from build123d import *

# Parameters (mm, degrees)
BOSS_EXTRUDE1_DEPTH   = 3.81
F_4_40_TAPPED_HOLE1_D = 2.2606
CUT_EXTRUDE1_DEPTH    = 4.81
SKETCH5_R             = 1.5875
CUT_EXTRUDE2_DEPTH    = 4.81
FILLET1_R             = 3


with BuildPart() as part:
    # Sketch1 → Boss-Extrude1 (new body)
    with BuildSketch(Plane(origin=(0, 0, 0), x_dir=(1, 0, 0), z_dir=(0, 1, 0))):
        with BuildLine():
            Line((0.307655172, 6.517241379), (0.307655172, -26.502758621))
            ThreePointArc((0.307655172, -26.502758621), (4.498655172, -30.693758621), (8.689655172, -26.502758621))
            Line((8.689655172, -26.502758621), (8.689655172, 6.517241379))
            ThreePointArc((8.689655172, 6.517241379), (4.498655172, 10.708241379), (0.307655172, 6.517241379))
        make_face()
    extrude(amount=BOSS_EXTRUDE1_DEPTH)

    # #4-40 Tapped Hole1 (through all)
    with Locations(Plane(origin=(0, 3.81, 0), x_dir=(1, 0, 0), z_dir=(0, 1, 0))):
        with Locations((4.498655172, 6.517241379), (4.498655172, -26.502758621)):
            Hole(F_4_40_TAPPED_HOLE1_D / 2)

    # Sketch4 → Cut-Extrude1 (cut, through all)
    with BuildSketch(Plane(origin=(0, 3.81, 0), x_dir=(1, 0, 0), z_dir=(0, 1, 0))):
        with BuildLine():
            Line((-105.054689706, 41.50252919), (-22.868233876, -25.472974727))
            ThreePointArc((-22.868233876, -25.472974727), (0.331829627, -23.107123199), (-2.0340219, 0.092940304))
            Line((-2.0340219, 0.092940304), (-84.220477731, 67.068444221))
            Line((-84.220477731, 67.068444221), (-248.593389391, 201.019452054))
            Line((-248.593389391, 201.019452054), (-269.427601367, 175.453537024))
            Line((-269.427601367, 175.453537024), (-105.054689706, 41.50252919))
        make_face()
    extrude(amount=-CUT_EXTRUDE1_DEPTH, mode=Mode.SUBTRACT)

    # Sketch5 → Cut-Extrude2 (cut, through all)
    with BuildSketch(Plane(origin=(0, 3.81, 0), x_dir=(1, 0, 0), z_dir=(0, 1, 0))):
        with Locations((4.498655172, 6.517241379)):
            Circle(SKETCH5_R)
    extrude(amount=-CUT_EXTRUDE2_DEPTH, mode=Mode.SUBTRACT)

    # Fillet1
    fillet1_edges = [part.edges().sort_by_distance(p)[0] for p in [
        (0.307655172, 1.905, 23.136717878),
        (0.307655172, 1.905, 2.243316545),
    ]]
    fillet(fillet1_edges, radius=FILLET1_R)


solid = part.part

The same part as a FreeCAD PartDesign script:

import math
import FreeCAD as App
import Part
import Sketcher

V = App.Vector
Q = App.Units.Quantity


def edges_at(feature, points):
    """Names of the edges that pass closest to the given points."""
    edges = feature.Shape.Edges
    near = lambda p: min(range(len(edges)), key=lambda i: edges[i].distToShape(Part.Vertex(*p))[0])
    return sorted({f"Edge{near(p) + 1}" for p in points})

doc = App.newDocument("Part")
body = doc.addObject("PartDesign::Body", "Body")

sketch1 = body.newObject("Sketcher::SketchObject", "Sketch")
sketch1.AttachmentSupport = (doc.getObject("XZ_Plane"), [""])
sketch1.MapMode = "FlatFace"
sketch1.addGeometry([
    Part.LineSegment(V(0.307655, -6.517241, 0), V(0.307655, 26.502759, 0)),
    Part.ArcOfCircle(Part.Circle(V(4.498655, 26.502759, 0), V(0, 0, 1), 4.191), math.radians(0), math.radians(180)),
    Part.LineSegment(V(8.689655, 26.502759, 0), V(8.689655, -6.517241, 0)),
    Part.ArcOfCircle(Part.Circle(V(4.498655, -6.517241, 0), V(0, 0, 1), 4.191), math.radians(180), math.radians(360)),
], False)
sketch1.addConstraint([
    Sketcher.Constraint("Tangent", 0, 2, 1, 2),
    Sketcher.Constraint("Tangent", 1, 1, 2, 1),
    Sketcher.Constraint("Tangent", 2, 2, 3, 2),
    Sketcher.Constraint("Tangent", 3, 1, 0, 1),
    Sketcher.Constraint("Vertical", 0),
    Sketcher.Constraint("Vertical", 2),
    Sketcher.Constraint("DistanceY", 0, 1, 0, 2, Q("1.3 in")),
    Sketcher.Constraint("Radius", 1, Q("0.165 in")),
    Sketcher.Constraint("DistanceY", -1, 1, 1, 3, Q("26.502759 mm")),
    Sketcher.Constraint("DistanceX", -1, 1, 1, 3, Q("4.498655 mm")),
])
pad1 = body.newObject("PartDesign::Pad", "Pad")
pad1.Profile = sketch1
pad1.Length = Q("0.15 in")
pad1.Reversed = True

sketch2 = body.newObject("Sketcher::SketchObject", "Sketch001")
sketch2.AttachmentSupport = (doc.getObject("XZ_Plane"), [""])
sketch2.MapMode = "FlatFace"
sketch2.AttachmentOffset = App.Placement(V(0, 0, -0.15 * 25.4), App.Rotation())
sketch2.addGeometry([
    Part.Circle(V(4.498655, -6.517241, 0), V(0, 0, 1), 1.1303),
    Part.Circle(V(4.498655, 26.502759, 0), V(0, 0, 1), 1.1303),
], False)
sketch2.addConstraint([
    Sketcher.Constraint("Equal", 0, 1),
    Sketcher.Constraint("Vertical", 0, 3, 1, 3),
    Sketcher.Constraint("Diameter", 0, Q("0.089 in")),
    Sketcher.Constraint("DistanceY", 0, 3, 1, 3, Q("1.3 in")),
    Sketcher.Constraint("DistanceY", 0, 3, -1, 1, Q("6.517241 mm")),
    Sketcher.Constraint("DistanceX", -1, 1, 0, 3, Q("4.498655 mm")),
])
doc.recompute()
hole = body.newObject("PartDesign::Hole", "Hole")
hole.Profile = sketch2
hole.ThreadType = "None"
hole.Diameter = Q("0.089 in")
hole.DepthType = "ThroughAll"
hole.Reversed = True

sketch3 = body.newObject("Sketcher::SketchObject", "Sketch002")
sketch3.AttachmentSupport = (doc.getObject("XZ_Plane"), [""])
sketch3.MapMode = "FlatFace"
sketch3.AttachmentOffset = App.Placement(V(0, 0, -0.15 * 25.4), App.Rotation())
sketch3.addGeometry([
    Part.LineSegment(V(-105.05469, -41.502529, 0), V(-22.868234, 25.472975, 0)),
    Part.ArcOfCircle(Part.Circle(V(-12.451128, 12.690017, 0), V(0, 0, 1), 16.49), math.radians(-50.822671), math.radians(129.177329)),
    Part.LineSegment(V(-2.034022, -0.09294, 0), V(-84.220478, -67.068444, 0)),
    Part.LineSegment(V(-84.220478, -67.068444, 0), V(-248.593389, -201.019452, 0)),
    Part.LineSegment(V(-248.593389, -201.019452, 0), V(-269.427601, -175.453537, 0)),
    Part.LineSegment(V(-269.427601, -175.453537, 0), V(-105.05469, -41.502529, 0)),
], False)
sketch3.addConstraint([
    Sketcher.Constraint("Tangent", 0, 2, 1, 2),
    Sketcher.Constraint("Tangent", 1, 1, 2, 1),
    Sketcher.Constraint("Coincident", 2, 2, 3, 1),
    Sketcher.Constraint("Coincident", 3, 2, 4, 1),
    Sketcher.Constraint("Coincident", 4, 2, 5, 1),
    Sketcher.Constraint("Coincident", 5, 2, 0, 1),
    Sketcher.Constraint("Parallel", 0, 2),
    Sketcher.Constraint("Parallel", 2, 3),
    Sketcher.Constraint("Perpendicular", 3, 4),
    Sketcher.Constraint("Perpendicular", 4, 5),
    Sketcher.Constraint("Equal", 0, 2),
    Sketcher.Constraint("Radius", 1, Q("16.49 mm")),
    Sketcher.Constraint("DistanceX", 4, 2, -1, 1, Q("269.427601 mm")),
    Sketcher.Constraint("Distance", 0, Q("106.02043 mm")),
    Sketcher.Constraint("Distance", 3, Q("212.040861 mm")),
    Sketcher.Constraint("DistanceX", 1, 1, -1, 1, Q("2.034022 mm")),
    Sketcher.Constraint("DistanceY", 1, 1, -1, 1, Q("0.09294 mm")),
])
pocket1 = body.newObject("PartDesign::Pocket", "Pocket")
pocket1.Profile = sketch3
pocket1.Type = "ThroughAll"
pocket1.Reversed = True

sketch4 = body.newObject("Sketcher::SketchObject", "Sketch003")
sketch4.AttachmentSupport = (doc.getObject("XZ_Plane"), [""])
sketch4.MapMode = "FlatFace"
sketch4.AttachmentOffset = App.Placement(V(0, 0, -0.15 * 25.4), App.Rotation())
sketch4.addGeometry(Part.Circle(V(4.498655, -6.517241, 0), V(0, 0, 1), 1.5875), False)
sketch4.addConstraint([
    Sketcher.Constraint("Diameter", 0, Q("0.125 in")),
    Sketcher.Constraint("DistanceY", 0, 3, -1, 1, Q("6.517241 mm")),
    Sketcher.Constraint("DistanceX", -1, 1, 0, 3, Q("4.498655 mm")),
])
pocket2 = body.newObject("PartDesign::Pocket", "Pocket001")
pocket2.Profile = sketch4
pocket2.Type = "ThroughAll"
pocket2.Reversed = True
doc.recompute()

fillet = body.newObject("PartDesign::Fillet", "Fillet")
fillet.Base = (pocket2, edges_at(pocket2, [(0.308, 1.905, 23.137), (0.308, 1.905, 2.243)]))
fillet.Radius = 3

doc.recompute()
